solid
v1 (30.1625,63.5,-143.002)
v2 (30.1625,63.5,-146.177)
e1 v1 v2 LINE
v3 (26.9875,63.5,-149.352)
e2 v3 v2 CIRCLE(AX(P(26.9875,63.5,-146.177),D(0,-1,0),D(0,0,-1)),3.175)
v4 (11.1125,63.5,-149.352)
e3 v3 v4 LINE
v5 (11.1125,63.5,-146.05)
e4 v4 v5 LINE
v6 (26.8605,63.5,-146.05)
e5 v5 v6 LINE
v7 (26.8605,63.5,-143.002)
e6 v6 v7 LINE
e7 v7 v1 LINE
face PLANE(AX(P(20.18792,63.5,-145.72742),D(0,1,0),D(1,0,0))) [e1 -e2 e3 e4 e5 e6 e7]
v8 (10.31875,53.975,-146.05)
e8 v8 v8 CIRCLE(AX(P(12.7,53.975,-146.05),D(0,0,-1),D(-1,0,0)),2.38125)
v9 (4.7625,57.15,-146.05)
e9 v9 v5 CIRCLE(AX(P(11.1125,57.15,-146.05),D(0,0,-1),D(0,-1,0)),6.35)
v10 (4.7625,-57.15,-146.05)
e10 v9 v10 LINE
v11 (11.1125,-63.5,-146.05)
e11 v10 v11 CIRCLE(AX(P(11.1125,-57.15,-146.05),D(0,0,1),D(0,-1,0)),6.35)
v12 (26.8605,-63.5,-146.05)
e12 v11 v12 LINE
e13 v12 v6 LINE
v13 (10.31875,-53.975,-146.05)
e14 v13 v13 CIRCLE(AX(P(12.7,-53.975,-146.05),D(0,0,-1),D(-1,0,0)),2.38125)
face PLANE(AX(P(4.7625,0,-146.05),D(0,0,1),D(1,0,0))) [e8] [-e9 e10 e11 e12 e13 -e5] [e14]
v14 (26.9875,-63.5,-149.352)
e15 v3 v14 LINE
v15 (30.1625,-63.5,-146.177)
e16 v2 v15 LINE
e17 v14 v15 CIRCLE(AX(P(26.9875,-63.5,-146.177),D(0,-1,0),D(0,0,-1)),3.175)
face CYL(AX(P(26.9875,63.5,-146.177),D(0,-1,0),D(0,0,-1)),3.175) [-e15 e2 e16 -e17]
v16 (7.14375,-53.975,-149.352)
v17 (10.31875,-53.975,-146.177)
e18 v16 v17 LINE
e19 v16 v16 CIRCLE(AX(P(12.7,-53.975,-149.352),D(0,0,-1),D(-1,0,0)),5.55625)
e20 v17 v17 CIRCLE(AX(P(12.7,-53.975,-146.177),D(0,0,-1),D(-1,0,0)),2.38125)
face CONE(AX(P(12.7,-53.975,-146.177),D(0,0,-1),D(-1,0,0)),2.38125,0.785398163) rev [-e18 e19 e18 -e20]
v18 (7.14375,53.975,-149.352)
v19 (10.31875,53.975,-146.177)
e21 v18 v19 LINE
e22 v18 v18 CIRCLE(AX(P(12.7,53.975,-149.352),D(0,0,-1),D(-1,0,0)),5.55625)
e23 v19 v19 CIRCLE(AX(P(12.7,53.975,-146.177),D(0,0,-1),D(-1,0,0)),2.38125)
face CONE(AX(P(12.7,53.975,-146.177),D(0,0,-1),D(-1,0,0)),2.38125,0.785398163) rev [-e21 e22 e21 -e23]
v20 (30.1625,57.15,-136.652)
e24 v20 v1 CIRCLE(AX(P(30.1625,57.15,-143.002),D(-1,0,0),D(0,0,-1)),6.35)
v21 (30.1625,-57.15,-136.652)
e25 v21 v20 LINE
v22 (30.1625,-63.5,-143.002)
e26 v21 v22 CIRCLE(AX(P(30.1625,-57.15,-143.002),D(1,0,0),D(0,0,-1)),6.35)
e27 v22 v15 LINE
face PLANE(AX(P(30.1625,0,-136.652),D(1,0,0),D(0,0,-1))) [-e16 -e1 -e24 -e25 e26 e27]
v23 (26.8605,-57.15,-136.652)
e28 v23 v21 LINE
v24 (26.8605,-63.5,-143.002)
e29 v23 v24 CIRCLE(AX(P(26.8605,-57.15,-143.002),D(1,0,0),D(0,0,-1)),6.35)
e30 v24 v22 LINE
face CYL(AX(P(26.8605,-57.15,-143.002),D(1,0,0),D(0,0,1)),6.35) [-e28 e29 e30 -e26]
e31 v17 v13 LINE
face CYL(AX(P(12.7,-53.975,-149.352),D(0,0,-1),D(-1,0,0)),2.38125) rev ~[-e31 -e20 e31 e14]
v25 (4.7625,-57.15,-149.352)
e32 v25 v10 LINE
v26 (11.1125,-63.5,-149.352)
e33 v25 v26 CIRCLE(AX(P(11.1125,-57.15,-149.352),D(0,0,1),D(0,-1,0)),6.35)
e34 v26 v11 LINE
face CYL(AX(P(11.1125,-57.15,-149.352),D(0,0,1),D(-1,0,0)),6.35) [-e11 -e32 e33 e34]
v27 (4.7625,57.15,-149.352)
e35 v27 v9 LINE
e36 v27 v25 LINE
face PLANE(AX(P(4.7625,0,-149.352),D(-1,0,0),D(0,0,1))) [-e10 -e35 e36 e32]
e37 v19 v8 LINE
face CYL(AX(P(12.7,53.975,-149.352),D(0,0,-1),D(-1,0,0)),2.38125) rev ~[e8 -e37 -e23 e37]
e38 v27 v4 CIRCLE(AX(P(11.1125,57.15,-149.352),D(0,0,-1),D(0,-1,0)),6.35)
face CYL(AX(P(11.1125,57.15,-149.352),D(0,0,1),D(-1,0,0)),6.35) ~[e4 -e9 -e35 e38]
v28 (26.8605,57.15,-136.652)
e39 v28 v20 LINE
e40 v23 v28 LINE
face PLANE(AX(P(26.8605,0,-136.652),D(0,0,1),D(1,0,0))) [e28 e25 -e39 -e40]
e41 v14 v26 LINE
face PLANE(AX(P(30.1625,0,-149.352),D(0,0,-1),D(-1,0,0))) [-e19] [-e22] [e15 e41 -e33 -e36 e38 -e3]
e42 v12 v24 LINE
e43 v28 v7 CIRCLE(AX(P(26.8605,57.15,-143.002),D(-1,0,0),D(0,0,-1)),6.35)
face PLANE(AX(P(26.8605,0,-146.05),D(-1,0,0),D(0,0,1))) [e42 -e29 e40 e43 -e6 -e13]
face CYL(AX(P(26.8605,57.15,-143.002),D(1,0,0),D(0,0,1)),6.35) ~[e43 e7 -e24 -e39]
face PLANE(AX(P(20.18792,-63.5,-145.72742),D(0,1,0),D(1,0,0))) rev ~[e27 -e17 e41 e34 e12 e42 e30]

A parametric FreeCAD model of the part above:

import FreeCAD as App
import Part
import Sketcher
Q = App.Units.Quantity


def edges_at(feature, points):
    """Names of the edges that pass closest to the given points."""
    edges = feature.Shape.Edges
    near = lambda p: min(range(len(edges)), key=lambda i: edges[i].distToShape(Part.Vertex(*p))[0])
    return sorted({f"Edge{near(p) + 1}" for p in points})

doc = App.newDocument("Part")
body = doc.addObject("PartDesign::Body", "Body")

sketch1 = body.newObject("Sketcher::SketchObject", "Sketch")
sketch1.AttachmentSupport = (doc.getObject("XZ_Plane"), [""])
sketch1.MapMode = "FlatFace"
sketch1.addGeometry([
    Part.LineSegment(App.Vector(0, 0, 0), App.Vector(22.1, 0, 0)),
    Part.LineSegment(App.Vector(22.1, 0, 0), App.Vector(22.1, -9.4, 0)),
    Part.LineSegment(App.Vector(22.1, -9.4, 0), App.Vector(25.4, -9.4, 0)),
    Part.LineSegment(App.Vector(25.4, -9.4, 0), App.Vector(25.4, 3.3, 0)),
    Part.LineSegment(App.Vector(25.4, 3.3, 0), App.Vector(0, 3.3, 0)),
    Part.LineSegment(App.Vector(0, 3.3, 0), App.Vector(0, 0, 0)),
], False)
sketch1.addConstraint([
    Sketcher.Constraint("Coincident", 0, 2, 1, 1),
    Sketcher.Constraint("Coincident", 1, 2, 2, 1),
    Sketcher.Constraint("Coincident", 2, 2, 3, 1),
    Sketcher.Constraint("Coincident", 3, 2, 4, 1),
    Sketcher.Constraint("Coincident", 4, 2, 5, 1),
    Sketcher.Constraint("Coincident", 5, 2, 0, 1),
    Sketcher.Constraint("Horizontal", 0),
    Sketcher.Constraint("Vertical", 1),
    Sketcher.Constraint("Horizontal", 2),
    Sketcher.Constraint("Vertical", 3),
    Sketcher.Constraint("Horizontal", 4),
    Sketcher.Constraint("Vertical", 5),
    Sketcher.Constraint("Coincident", 5, 2, -1, 1),
    Sketcher.Constraint("Equal", 2, 5),
    Sketcher.Constraint("DistanceX", 4, 2, 4, 1, Q("1 in")),
    Sketcher.Constraint("DistanceY", 3, 1, 3, 2, Q("0.5 in")),
    Sketcher.Constraint("DistanceX", 0, 1, 0, 2, Q("0.87 in")),
])
pad1 = body.newObject("PartDesign::Pad", "Pad")
pad1.Profile = sketch1
pad1.Length = Q("5 in")
pad1.Midplane = True
doc.recompute()

fillet = body.newObject("PartDesign::Fillet", "Fillet")
fillet.Base = (pad1, edges_at(pad1, [
    (23.749, -63.5, -9.398),
    (23.749, 63.5, -9.398),
    (0, 63.5, 1.651),
    (0, -63.5, 1.651),
]))
fillet.Radius = Q("0.25 in")
doc.recompute()

fillet2 = body.newObject("PartDesign::Fillet", "Fillet001")
fillet2.Base = (fillet, edges_at(fillet, [(25.4, 0, 3.302)]))
fillet2.Radius = Q("0.125 in")

sketch2 = body.newObject("Sketcher::SketchObject", "Sketch001")
sketch2.AttachmentSupport = (doc.getObject("XY_Plane"), [""])
sketch2.MapMode = "FlatFace"
sketch2.AttachmentOffset = App.Placement(App.Vector(0, 0, 0.13 * 25.4), App.Rotation())
sketch2.addGeometry([
    Part.Circle(App.Vector(7.9, -54, 0), App.Vector(0, 0, 1), 2.4),
    Part.Circle(App.Vector(7.9, 54, 0), App.Vector(0, 0, 1), 2.4),
], False)
sketch2.addConstraint([
    Sketcher.Constraint("Equal", 0, 1),
    Sketcher.Constraint("Symmetric", 0, 3, 1, 3, -1),
    Sketcher.Constraint("Diameter", 0, Q("0.1875 in")),
    Sketcher.Constraint("DistanceY", 0, 3, 1, 3, Q("4.25 in")),
    Sketcher.Constraint("DistanceX", -1, 1, 0, 3, Q("0.3125 in")),
])
pocket1 = body.newObject("PartDesign::Pocket", "Pocket")
pocket1.Profile = sketch2
pocket1.Type = "ThroughAll"
doc.recompute()

chamfer = body.newObject("PartDesign::Chamfer", "Chamfer")
chamfer.Base = (pocket1, edges_at(pocket1, [(10.319, 53.975, 3.302), (10.319, -53.975, 3.302)]))
chamfer.Size = Q("0.125 in")
body2 = doc.addObject("PartDesign::Body", "Body001")
doc.recompute()

body.Placement = App.Placement(App.Vector(4.7625, 0, 146.05), App.Rotation(App.Vector(0, 0, 1), 0))
boolean = body2.newObject("PartDesign::Boolean", "Boolean")
boolean.Type = "Fuse"
boolean.addObjects([body])
body3 = doc.addObject("PartDesign::Body", "Body002")
doc.recompute()

body2.Placement = App.Placement(App.Vector(0, -19.05, -142.875), App.Rotation(App.Vector(0, 0, 1), 0))
boolean2 = body3.newObject("PartDesign::Boolean", "Boolean001")
boolean2.Type = "Fuse"
boolean2.addObjects([body2])
body4 = doc.addObject("PartDesign::Body", "Body003")
doc.recompute()

body3.Placement = App.Placement(App.Vector(0, -19.05, -142.875), App.Rotation(App.Vector(1, 0, 0), 180))
boolean3 = body4.newObject("PartDesign::Boolean", "Boolean002")
boolean3.Type = "Fuse"
boolean3.addObjects([body3])

doc.recompute()
